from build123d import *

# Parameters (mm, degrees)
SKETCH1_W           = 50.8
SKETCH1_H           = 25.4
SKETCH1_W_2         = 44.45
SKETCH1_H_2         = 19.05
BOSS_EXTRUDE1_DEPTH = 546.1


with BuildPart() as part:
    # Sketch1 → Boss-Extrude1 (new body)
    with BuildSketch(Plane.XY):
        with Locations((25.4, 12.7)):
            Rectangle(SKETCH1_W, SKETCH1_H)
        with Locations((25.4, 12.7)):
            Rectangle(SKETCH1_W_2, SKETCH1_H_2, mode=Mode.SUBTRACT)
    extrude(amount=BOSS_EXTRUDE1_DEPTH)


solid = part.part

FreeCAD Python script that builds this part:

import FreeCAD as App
import Part
import Sketcher
Q = App.Units.Quantity


def add_polygon(sketch, points):
    """Adds a closed chain of lines whose ends are joined by coincident constraints."""
    first, n = sketch.GeometryCount, len(points)
    for a, b in zip(points, points[1:] + points[:1]):
        sketch.addGeometry(Part.LineSegment(App.Vector(*a, 0), App.Vector(*b, 0)), False)
    for i in range(n):
        sketch.addConstraint(Sketcher.Constraint("Coincident", first + i, 2, first + (i + 1) % n, 1))

doc = App.newDocument("Part")
params = doc.addObject("Spreadsheet::Sheet", "Params")
for row, (alias, value) in enumerate([
    ("sketch1_width", "2 in"),
    ("sketch1_height", "1 in"),
    ("sketch1_width2", "1.75 in"),
    ("sketch1_height2", "0.75 in"),
    ("pad1_length", "21.5 in"),
], start=1):
    params.set(f"A{row}", alias)
    params.set(f"B{row}", "=" + value)
    params.setAlias(f"B{row}", alias)

body = doc.addObject("PartDesign::Body", "Body")

sketch1 = body.newObject("Sketcher::SketchObject", "Sketch")
sketch1.AttachmentSupport = (doc.getObject("XY_Plane"), [""])
sketch1.MapMode = "FlatFace"
add_polygon(sketch1, [(0, 25), (0, 0), (51, 0), (51, 25)])
add_polygon(sketch1, [(48, 3), (3, 3), (3, 22), (48, 22)])
sketch1.addConstraint([
    Sketcher.Constraint("Vertical", 0),
    Sketcher.Constraint("Horizontal", 1),
    Sketcher.Constraint("Vertical", 2),
    Sketcher.Constraint("Horizontal", 3),
    Sketcher.Constraint("Horizontal", 4),
    Sketcher.Constraint("Vertical", 5),
    Sketcher.Constraint("Horizontal", 6),
    Sketcher.Constraint("Vertical", 7),
    Sketcher.Constraint("Coincident", 0, 2, -1, 1),
    Sketcher.Constraint("DistanceX", 1, 1, 1, 2, Q("2 in")),
    Sketcher.Constraint("DistanceY", 0, 2, 0, 1, Q("1 in")),
    Sketcher.Constraint("DistanceX", 4, 2, 4, 1, Q("1.75 in")),
    Sketcher.Constraint("DistanceY", 5, 1, 5, 2, Q("0.75 in")),
    Sketcher.Constraint("DistanceX", -1, 1, 4, 2, Q("0.125 in")),
    Sketcher.Constraint("DistanceY", -1, 1, 4, 2, Q("0.125 in")),
])
sketch1.setExpression("Constraints[17]", "Params.sketch1_width")
sketch1.setExpression("Constraints[18]", "Params.sketch1_height")
sketch1.setExpression("Constraints[19]", "Params.sketch1_width2")
sketch1.setExpression("Constraints[20]", "Params.sketch1_height2")
pad1 = body.newObject("PartDesign::Pad", "Pad")
pad1.Profile = sketch1
pad1.setExpression("Length", "Params.pad1_length")

doc.recompute()
